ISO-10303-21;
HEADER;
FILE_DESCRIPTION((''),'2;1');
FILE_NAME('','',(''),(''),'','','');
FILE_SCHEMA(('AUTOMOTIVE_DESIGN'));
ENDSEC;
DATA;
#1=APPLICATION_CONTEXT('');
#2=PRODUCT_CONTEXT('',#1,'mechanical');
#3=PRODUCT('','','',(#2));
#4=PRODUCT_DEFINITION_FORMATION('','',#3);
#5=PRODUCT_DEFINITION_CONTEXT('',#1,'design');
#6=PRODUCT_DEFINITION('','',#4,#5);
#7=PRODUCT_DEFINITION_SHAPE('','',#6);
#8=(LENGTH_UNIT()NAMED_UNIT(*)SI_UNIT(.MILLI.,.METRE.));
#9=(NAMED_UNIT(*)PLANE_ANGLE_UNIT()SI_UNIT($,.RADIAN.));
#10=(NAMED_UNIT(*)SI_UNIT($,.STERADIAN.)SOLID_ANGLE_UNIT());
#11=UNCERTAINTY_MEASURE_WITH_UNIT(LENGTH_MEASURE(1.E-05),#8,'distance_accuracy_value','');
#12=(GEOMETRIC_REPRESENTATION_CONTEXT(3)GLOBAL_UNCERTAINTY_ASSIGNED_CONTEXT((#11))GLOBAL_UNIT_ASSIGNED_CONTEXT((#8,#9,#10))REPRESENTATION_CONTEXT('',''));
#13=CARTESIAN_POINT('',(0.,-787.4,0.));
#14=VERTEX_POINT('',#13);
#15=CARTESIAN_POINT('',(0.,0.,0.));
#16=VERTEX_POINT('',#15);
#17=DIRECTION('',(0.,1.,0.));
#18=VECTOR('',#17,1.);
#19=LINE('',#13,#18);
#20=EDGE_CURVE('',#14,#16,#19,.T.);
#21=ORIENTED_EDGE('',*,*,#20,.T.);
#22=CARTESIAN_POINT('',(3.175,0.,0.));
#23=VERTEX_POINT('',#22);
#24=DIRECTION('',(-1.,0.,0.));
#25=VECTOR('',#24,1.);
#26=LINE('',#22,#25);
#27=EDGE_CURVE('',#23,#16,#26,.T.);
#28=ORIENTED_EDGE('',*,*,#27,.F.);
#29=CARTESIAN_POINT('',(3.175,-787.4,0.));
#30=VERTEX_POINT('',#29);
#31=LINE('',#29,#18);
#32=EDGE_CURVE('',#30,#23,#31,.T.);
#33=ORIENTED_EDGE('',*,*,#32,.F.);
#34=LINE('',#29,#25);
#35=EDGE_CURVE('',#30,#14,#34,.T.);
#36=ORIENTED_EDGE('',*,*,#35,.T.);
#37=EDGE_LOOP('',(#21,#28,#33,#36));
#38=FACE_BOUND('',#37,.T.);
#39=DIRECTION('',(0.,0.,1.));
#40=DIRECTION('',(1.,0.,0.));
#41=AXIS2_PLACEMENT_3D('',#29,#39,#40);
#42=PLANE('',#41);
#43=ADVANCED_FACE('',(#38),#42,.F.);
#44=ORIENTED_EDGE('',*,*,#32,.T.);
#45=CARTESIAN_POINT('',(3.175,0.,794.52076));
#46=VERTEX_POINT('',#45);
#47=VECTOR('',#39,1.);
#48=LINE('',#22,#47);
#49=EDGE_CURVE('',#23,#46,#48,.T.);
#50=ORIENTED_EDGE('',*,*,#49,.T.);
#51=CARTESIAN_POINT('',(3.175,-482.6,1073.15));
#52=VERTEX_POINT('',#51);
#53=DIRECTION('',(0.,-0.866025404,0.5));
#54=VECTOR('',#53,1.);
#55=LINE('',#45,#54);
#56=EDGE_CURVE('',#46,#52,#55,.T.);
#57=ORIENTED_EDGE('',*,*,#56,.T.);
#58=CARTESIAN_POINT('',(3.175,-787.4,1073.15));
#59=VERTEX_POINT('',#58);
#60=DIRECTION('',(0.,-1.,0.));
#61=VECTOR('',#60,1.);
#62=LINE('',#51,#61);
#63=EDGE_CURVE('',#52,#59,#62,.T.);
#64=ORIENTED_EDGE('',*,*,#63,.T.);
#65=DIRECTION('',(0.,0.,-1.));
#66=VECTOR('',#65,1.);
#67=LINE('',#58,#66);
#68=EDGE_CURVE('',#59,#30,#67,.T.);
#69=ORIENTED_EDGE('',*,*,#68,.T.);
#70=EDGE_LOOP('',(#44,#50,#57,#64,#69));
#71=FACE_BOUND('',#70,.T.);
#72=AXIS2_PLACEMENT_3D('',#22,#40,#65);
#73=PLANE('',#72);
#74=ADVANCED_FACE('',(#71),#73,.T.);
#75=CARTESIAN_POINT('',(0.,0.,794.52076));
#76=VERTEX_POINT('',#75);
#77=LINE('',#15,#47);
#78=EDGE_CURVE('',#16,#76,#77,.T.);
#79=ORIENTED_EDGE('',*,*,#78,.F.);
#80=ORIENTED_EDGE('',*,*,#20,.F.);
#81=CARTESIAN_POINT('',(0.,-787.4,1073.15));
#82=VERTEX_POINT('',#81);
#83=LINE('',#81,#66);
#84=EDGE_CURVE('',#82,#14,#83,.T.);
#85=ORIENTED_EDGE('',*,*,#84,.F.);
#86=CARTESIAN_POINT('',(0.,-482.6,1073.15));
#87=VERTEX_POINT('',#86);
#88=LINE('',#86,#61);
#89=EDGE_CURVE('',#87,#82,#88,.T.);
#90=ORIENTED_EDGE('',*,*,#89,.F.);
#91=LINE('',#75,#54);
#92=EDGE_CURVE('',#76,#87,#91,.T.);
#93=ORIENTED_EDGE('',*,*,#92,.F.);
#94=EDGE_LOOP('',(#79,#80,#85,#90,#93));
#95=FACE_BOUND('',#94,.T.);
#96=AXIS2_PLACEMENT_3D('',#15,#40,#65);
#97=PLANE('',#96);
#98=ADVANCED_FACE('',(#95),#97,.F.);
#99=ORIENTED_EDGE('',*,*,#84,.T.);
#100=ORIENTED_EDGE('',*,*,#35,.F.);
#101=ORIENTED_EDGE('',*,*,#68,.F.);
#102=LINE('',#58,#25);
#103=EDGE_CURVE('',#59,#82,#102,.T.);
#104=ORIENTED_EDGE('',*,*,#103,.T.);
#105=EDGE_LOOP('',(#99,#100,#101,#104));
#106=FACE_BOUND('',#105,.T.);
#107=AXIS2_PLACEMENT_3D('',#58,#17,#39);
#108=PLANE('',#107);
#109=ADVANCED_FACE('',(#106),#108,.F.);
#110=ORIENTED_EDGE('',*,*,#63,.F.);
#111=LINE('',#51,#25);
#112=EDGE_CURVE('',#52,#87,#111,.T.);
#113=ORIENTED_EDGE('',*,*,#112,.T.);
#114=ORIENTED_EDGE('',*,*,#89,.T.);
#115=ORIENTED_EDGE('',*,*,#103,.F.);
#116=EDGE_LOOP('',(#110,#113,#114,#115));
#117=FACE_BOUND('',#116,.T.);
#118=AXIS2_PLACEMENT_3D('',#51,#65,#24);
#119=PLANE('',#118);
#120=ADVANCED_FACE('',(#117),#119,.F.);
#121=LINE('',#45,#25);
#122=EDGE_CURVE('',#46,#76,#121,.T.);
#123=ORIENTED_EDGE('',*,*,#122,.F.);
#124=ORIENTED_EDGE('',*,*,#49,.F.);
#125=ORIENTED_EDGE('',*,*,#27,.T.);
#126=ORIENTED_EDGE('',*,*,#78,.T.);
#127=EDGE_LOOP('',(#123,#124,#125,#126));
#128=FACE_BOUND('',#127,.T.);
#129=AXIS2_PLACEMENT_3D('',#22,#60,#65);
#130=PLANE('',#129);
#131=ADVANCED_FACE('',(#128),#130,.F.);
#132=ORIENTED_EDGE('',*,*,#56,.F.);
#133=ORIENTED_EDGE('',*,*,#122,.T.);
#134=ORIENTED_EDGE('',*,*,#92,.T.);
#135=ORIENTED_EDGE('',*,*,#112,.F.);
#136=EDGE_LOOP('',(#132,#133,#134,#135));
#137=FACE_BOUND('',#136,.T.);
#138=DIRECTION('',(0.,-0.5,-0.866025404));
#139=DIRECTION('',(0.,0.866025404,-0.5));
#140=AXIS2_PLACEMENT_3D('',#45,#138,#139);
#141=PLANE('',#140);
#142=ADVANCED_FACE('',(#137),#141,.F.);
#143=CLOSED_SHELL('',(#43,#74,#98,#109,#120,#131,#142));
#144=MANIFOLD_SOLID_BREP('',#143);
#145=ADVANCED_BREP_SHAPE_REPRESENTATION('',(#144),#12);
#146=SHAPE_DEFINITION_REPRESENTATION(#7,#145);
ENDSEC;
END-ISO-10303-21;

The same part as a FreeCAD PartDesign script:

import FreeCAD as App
import Part
import Sketcher

V = App.Vector
Q = App.Units.Quantity

doc = App.newDocument("Part")
body = doc.addObject("PartDesign::Body", "Body")

sketch1 = body.newObject("Sketcher::SketchObject", "Sketch")
sketch1.AttachmentSupport = (doc.getObject("YZ_Plane"), [""])
sketch1.MapMode = "FlatFace"
sketch1.addGeometry([
    Part.LineSegment(V(0, 0, 0), V(0, 794.52076, 0)),
    Part.LineSegment(V(0, 794.52076, 0), V(-482.6, 1073.15, 0)),
    Part.LineSegment(V(-482.6, 1073.15, 0), V(-787.4, 1073.15, 0)),
    Part.LineSegment(V(-787.4, 1073.15, 0), V(-787.4, 0, 0)),
    Part.LineSegment(V(-787.4, 0, 0), V(0, 0, 0)),
], False)
sketch1.addConstraint([
    Sketcher.Constraint("Coincident", 0, 2, 1, 1),
    Sketcher.Constraint("Coincident", 1, 2, 2, 1),
    Sketcher.Constraint("Coincident", 2, 2, 3, 1),
    Sketcher.Constraint("Coincident", 3, 2, 4, 1),
    Sketcher.Constraint("Coincident", 4, 2, 0, 1),
    Sketcher.Constraint("Vertical", 0),
    Sketcher.Constraint("Horizontal", 2),
    Sketcher.Constraint("Vertical", 3),
    Sketcher.Constraint("Horizontal", 4),
    Sketcher.Constraint("Coincident", 4, 2, -1, 1),
    Sketcher.Constraint("DistanceX", 2, 2, 2, 1, Q("12 in")),
    Sketcher.Constraint("DistanceX", 4, 1, 4, 2, Q("31 in")),
    Sketcher.Constraint("Angle", 1, Q("150 deg")),
    Sketcher.Constraint("DistanceY", 3, 2, 3, 1, Q("42.25 in")),
])
pad1 = body.newObject("PartDesign::Pad", "Pad")
pad1.Profile = sketch1
pad1.Length = Q("0.125 in")

doc.recompute()
